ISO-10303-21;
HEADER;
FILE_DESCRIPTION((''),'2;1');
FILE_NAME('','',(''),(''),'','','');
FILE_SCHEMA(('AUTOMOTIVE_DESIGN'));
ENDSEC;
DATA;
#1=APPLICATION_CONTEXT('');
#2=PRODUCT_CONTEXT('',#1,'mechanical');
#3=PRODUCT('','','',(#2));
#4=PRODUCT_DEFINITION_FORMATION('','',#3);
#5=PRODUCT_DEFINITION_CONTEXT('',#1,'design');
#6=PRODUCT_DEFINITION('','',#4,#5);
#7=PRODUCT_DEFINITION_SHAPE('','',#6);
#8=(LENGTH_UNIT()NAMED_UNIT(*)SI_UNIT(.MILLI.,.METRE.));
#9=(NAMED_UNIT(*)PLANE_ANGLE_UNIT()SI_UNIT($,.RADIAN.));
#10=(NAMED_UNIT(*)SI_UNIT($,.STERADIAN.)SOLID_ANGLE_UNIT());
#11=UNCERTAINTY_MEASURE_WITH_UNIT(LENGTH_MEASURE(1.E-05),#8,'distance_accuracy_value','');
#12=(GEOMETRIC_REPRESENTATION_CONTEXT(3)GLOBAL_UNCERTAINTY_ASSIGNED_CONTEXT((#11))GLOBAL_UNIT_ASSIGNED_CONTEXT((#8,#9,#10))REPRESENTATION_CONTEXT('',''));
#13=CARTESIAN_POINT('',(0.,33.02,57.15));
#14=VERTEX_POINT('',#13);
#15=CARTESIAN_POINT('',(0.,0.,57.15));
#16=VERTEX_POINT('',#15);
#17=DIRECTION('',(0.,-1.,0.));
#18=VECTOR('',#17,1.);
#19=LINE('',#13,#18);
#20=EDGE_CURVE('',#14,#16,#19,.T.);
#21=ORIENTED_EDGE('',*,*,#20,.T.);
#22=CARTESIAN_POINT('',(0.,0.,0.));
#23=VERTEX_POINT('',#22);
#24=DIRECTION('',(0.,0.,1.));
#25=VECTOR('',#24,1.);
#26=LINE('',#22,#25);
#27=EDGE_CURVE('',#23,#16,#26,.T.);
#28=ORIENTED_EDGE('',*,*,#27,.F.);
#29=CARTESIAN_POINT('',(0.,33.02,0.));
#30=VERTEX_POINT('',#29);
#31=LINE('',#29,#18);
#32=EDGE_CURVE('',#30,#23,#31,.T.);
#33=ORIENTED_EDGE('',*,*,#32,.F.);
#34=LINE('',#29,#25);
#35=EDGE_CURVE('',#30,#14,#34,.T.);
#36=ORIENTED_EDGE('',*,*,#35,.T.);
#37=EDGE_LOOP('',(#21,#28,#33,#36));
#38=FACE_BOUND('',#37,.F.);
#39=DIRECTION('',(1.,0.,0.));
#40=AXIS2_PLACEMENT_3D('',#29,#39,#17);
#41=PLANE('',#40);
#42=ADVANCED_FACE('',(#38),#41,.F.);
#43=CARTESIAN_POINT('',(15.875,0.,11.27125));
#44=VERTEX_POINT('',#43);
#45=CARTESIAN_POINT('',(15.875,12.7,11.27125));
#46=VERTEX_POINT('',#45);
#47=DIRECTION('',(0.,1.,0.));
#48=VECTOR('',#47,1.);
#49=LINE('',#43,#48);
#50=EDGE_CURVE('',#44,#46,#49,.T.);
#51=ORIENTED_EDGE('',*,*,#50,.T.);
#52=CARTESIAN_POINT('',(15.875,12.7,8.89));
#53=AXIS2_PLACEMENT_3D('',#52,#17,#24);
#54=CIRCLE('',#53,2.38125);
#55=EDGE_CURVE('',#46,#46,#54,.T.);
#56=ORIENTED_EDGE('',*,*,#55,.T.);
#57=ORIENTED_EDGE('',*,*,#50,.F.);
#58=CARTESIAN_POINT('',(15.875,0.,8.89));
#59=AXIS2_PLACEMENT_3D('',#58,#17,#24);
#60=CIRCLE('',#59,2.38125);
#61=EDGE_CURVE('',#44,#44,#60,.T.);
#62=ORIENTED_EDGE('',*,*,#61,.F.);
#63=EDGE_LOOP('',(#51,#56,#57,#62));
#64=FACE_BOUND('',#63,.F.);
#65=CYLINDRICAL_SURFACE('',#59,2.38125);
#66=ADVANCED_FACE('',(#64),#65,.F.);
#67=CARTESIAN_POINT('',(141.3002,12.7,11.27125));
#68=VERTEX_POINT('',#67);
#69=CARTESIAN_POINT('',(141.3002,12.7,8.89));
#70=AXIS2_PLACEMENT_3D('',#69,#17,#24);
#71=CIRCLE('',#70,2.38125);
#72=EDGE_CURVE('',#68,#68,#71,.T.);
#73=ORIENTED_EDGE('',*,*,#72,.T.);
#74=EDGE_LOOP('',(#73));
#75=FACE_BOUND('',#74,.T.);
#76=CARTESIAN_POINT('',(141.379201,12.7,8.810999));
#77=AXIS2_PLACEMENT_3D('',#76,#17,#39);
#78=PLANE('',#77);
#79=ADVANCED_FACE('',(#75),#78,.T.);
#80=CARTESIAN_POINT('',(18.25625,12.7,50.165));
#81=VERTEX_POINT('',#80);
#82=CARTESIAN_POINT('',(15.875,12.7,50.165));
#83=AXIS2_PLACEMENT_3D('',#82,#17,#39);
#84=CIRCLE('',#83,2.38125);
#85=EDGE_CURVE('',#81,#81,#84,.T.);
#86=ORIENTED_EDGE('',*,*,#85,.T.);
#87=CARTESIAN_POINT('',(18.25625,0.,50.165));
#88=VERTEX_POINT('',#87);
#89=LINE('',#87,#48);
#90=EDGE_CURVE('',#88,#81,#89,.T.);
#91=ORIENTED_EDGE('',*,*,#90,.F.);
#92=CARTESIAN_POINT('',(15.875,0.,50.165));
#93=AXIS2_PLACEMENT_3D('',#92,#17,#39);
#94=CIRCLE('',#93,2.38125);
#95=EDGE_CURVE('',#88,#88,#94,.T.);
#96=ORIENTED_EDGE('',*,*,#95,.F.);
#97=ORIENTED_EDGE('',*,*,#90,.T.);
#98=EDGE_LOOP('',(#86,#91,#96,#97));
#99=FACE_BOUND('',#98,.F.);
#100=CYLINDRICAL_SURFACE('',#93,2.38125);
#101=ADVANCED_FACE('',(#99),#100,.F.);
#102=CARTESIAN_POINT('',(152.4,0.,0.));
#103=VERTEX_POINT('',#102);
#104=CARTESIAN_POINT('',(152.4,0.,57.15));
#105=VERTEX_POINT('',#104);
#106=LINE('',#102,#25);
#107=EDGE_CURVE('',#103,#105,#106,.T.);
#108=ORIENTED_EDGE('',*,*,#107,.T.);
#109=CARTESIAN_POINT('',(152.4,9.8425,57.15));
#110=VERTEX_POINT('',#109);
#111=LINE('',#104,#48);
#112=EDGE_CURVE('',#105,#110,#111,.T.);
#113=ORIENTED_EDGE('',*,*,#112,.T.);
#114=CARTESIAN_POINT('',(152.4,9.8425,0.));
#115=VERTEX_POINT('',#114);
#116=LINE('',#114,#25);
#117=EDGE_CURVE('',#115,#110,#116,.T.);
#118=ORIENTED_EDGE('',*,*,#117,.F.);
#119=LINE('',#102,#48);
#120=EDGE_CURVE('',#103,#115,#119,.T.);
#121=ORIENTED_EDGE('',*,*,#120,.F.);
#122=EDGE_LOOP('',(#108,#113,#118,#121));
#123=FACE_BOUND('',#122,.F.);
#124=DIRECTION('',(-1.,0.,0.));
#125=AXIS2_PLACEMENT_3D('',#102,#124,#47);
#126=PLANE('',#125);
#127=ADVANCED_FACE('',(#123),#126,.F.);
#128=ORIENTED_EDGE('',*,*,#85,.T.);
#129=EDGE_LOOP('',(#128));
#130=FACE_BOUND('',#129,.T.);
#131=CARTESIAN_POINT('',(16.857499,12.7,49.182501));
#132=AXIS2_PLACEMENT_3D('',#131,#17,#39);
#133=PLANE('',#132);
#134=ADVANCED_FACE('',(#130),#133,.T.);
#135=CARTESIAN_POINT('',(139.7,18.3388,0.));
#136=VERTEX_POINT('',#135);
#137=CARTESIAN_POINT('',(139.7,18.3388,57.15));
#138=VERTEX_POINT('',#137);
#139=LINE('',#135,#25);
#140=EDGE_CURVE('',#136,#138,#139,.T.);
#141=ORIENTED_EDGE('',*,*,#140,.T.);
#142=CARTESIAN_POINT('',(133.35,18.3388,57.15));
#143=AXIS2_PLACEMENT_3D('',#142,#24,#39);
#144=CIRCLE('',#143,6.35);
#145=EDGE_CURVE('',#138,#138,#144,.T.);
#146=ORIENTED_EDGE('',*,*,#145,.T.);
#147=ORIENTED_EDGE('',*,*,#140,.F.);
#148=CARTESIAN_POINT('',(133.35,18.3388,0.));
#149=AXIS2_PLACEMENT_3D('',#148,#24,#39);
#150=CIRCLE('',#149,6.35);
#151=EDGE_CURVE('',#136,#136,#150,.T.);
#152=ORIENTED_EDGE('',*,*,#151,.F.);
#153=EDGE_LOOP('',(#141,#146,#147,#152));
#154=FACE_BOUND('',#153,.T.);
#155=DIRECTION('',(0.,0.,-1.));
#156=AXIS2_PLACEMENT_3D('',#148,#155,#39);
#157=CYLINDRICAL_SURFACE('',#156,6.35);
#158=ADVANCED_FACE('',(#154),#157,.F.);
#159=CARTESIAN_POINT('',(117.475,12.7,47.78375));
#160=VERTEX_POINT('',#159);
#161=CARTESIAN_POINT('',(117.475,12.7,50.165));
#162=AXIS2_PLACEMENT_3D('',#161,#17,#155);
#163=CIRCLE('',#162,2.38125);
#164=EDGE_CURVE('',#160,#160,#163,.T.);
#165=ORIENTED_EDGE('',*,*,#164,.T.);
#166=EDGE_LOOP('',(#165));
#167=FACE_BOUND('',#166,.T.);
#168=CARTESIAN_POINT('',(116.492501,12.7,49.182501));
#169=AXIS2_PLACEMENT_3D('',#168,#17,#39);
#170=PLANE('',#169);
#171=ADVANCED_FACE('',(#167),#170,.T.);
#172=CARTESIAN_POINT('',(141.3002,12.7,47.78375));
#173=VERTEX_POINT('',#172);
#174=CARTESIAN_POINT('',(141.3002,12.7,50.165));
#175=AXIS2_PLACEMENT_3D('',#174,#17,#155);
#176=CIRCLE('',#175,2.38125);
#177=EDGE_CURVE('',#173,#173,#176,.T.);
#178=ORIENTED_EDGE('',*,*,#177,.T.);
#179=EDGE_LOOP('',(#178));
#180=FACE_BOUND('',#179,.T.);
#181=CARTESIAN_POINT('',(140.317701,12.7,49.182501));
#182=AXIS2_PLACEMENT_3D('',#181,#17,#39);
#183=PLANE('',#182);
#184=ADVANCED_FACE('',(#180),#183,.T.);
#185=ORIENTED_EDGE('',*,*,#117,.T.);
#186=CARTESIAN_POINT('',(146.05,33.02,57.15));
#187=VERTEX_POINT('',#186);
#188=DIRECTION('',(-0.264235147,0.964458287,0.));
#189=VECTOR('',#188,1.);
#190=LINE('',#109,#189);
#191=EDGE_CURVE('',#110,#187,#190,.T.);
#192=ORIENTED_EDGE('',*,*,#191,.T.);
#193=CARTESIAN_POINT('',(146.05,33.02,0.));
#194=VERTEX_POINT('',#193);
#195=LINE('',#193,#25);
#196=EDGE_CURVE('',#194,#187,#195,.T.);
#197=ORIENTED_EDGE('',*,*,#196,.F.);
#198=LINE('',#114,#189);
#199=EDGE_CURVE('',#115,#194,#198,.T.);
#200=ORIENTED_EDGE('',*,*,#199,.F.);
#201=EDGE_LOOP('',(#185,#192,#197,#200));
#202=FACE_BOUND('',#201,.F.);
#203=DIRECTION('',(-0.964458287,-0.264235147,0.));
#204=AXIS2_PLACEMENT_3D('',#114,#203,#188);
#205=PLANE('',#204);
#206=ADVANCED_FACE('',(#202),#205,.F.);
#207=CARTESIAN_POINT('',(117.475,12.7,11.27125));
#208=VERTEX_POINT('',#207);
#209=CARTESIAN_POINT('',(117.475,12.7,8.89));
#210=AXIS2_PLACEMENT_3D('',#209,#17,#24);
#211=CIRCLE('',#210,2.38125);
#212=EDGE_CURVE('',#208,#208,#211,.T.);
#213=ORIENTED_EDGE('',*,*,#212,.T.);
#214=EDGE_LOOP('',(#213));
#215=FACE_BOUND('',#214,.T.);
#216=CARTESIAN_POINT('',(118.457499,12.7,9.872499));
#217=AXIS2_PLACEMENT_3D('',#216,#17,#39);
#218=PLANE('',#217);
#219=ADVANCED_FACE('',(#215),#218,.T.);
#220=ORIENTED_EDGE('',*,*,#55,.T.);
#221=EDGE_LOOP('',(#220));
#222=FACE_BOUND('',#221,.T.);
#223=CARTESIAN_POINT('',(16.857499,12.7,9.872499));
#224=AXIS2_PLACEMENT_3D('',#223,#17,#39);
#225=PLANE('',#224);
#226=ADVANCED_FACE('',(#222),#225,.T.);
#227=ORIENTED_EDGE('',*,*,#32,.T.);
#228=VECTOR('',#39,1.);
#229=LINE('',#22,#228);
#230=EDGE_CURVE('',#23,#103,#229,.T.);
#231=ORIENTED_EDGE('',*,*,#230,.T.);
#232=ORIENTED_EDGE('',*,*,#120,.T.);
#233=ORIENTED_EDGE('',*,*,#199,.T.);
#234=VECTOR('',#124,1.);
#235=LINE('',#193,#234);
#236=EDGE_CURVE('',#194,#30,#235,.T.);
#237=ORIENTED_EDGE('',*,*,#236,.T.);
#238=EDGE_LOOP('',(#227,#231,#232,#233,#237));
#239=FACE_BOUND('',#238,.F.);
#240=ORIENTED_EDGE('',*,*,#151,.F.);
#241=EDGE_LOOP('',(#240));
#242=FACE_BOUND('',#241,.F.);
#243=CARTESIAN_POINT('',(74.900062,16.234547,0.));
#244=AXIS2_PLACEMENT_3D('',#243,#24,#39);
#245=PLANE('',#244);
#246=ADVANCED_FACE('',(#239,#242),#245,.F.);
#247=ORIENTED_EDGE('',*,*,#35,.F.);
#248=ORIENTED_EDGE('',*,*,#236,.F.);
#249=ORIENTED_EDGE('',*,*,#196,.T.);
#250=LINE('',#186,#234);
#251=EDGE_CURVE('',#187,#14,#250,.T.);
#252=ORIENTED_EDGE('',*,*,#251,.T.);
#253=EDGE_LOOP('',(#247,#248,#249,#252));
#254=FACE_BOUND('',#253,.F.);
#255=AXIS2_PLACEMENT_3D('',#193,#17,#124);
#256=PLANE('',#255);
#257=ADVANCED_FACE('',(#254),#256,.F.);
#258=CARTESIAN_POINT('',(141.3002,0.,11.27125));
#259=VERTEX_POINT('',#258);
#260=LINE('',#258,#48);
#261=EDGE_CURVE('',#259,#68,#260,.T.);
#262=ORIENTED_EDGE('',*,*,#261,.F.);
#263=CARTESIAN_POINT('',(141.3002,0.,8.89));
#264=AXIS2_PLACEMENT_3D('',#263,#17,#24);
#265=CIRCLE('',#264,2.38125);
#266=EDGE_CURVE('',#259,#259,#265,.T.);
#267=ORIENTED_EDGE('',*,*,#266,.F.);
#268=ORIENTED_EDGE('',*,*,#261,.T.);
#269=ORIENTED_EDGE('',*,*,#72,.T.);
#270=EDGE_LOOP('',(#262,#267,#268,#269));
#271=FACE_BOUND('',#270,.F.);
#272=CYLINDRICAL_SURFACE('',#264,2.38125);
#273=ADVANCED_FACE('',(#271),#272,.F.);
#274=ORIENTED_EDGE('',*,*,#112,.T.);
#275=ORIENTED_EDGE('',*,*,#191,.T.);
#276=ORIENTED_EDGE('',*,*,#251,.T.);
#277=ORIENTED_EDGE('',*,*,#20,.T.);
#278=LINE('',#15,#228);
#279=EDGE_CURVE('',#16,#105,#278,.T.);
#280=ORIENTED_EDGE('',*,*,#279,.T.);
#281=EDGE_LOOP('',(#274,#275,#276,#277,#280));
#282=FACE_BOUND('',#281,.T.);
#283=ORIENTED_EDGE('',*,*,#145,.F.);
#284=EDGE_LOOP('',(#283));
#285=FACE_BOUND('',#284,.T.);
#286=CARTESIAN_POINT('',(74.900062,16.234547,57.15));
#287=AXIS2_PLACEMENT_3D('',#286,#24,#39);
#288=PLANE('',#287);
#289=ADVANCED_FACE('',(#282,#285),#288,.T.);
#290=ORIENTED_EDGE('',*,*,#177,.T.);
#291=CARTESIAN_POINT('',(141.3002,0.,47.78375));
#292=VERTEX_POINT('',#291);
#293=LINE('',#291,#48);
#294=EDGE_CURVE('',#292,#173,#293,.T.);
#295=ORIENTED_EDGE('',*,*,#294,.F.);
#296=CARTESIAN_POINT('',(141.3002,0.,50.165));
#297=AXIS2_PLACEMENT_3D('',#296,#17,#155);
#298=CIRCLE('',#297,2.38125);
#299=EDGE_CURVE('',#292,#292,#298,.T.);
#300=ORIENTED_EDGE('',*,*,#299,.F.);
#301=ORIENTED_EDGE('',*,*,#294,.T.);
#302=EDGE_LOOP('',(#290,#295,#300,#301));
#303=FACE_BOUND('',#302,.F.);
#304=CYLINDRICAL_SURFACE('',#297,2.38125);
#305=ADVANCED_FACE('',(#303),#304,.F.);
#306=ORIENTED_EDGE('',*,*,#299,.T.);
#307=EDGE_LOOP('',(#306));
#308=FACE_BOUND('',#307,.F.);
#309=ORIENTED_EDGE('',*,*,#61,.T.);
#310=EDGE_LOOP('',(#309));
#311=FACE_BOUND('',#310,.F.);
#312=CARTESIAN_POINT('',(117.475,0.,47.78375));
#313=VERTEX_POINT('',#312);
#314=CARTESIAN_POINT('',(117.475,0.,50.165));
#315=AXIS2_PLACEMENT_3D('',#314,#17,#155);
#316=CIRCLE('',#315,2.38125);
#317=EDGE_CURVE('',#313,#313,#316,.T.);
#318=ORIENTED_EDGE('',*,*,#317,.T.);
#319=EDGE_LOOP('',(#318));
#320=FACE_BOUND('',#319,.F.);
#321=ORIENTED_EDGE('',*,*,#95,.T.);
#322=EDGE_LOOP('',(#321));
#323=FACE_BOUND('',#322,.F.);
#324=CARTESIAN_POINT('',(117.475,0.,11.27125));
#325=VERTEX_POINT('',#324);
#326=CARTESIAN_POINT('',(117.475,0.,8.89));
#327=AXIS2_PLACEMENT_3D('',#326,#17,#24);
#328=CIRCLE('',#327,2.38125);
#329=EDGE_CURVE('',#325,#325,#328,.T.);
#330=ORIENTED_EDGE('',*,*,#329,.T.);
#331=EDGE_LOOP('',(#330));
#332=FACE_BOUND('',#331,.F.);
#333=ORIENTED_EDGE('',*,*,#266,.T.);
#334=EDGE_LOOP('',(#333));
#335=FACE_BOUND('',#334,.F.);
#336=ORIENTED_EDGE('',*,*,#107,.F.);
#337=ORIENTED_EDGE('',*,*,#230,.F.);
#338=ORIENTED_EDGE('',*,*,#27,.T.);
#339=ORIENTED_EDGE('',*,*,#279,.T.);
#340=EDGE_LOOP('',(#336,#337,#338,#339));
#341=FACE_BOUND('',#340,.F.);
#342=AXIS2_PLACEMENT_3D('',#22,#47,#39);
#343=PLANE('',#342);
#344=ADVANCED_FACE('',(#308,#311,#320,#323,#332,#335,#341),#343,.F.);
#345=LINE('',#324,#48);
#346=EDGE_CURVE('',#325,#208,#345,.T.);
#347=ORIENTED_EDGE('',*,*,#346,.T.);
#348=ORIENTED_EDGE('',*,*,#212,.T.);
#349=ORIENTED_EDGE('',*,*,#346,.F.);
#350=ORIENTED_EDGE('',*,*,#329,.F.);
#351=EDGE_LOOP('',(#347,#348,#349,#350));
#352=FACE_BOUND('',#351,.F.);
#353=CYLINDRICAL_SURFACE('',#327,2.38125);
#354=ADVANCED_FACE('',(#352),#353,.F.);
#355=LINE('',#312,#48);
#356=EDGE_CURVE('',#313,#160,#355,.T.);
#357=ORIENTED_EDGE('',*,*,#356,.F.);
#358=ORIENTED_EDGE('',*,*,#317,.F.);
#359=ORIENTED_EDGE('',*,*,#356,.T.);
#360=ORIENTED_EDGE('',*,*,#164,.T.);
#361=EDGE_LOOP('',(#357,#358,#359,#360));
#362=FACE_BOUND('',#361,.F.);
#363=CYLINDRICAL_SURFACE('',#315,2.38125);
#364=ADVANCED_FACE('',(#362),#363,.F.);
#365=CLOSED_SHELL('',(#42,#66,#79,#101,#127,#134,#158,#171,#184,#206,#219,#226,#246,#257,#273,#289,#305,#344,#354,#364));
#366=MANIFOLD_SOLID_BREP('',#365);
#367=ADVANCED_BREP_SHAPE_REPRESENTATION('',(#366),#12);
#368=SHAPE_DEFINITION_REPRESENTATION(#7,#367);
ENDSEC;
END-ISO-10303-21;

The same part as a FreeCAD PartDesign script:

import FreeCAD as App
import Part
import Sketcher

V = App.Vector
Q = App.Units.Quantity

doc = App.newDocument("Part")
body = doc.addObject("PartDesign::Body", "Body")

# Sketch on XY plane
sketch1 = body.newObject("Sketcher::SketchObject", "Sketch")
sketch1.AttachmentSupport = (doc.getObject("XY_Plane"), [""])
sketch1.MapMode = "FlatFace"
sketch1.addGeometry(Part.LineSegment(V(0, 33.02, 0), V(0, 0, 0)), False)
sketch1.addGeometry(Part.LineSegment(V(0, 0, 0), V(152.4, 0, 0)), False)
sketch1.addGeometry(Part.LineSegment(V(152.4, 0, 0), V(152.4, 9.8425, 0)), False)
sketch1.addGeometry(Part.LineSegment(V(152.4, 9.8425, 0), V(146.05, 33.02, 0)), False)
sketch1.addGeometry(Part.LineSegment(V(146.05, 33.02, 0), V(0, 33.02, 0)), False)
sketch1.addGeometry(Part.Circle(V(133.35, 18.3388, 0), V(0, 0, 1), 6.35), False)
sketch1.addConstraint(Sketcher.Constraint("Coincident", 0, 2, 1, 1))
sketch1.addConstraint(Sketcher.Constraint("Coincident", 1, 2, 2, 1))
sketch1.addConstraint(Sketcher.Constraint("Coincident", 2, 2, 3, 1))
sketch1.addConstraint(Sketcher.Constraint("Coincident", 3, 2, 4, 1))
sketch1.addConstraint(Sketcher.Constraint("Coincident", 4, 2, 0, 1))
sketch1.addConstraint(Sketcher.Constraint("Vertical", 0))
sketch1.addConstraint(Sketcher.Constraint("Horizontal", 1))
sketch1.addConstraint(Sketcher.Constraint("Vertical", 2))
sketch1.addConstraint(Sketcher.Constraint("Horizontal", 4))
sketch1.addConstraint(Sketcher.Constraint("Coincident", 0, 2, -1, 1))
sketch1.addConstraint(Sketcher.Constraint("Diameter", 5, Q("0.5 in")))
sketch1.addConstraint(Sketcher.Constraint("DistanceX", 1, 1, 1, 2, Q("6 in")))
sketch1.addConstraint(Sketcher.Constraint("DistanceY", 0, 2, 0, 1, Q("1.3 in")))
sketch1.addConstraint(Sketcher.Constraint("DistanceX", 4, 2, 4, 1, Q("5.75 in")))
sketch1.addConstraint(Sketcher.Constraint("DistanceX", 5, 3, 3, 2, Q("0.5 in")))
sketch1.addConstraint(Sketcher.Constraint("DistanceY", 2, 1, 2, 2, Q("0.3875 in")))
sketch1.addConstraint(Sketcher.Constraint("DistanceY", -1, 1, 5, 3, Q("0.722 in")))
pad1 = body.newObject("PartDesign::Pad", "Pad")
pad1.Profile = sketch1
pad1.Length = Q("2.25 in")

# Sketch on XZ plane
sketch2 = body.newObject("Sketcher::SketchObject", "Sketch001")
sketch2.AttachmentSupport = (doc.getObject("XZ_Plane"), [""])
sketch2.MapMode = "FlatFace"
sketch2.addGeometry(Part.Circle(V(141.3002, 8.89, 0), V(0, 0, 1), 2.38125), False)
sketch2.addGeometry(Part.Circle(V(141.3002, 50.165, 0), V(0, 0, 1), 2.38125), False)
sketch2.addGeometry(Part.Circle(V(117.475, 8.89, 0), V(0, 0, 1), 2.38125), False)
sketch2.addGeometry(Part.Circle(V(117.475, 50.165, 0), V(0, 0, 1), 2.38125), False)
sketch2.addGeometry(Part.Circle(V(15.875, 8.89, 0), V(0, 0, 1), 2.38125), False)
sketch2.addGeometry(Part.Circle(V(15.875, 50.165, 0), V(0, 0, 1), 2.38125), False)
sketch2.addConstraint(Sketcher.Constraint("Equal", 0, 1))
sketch2.addConstraint(Sketcher.Constraint("Equal", 1, 2))
sketch2.addConstraint(Sketcher.Constraint("Equal", 2, 3))
sketch2.addConstraint(Sketcher.Constraint("Equal", 3, 4))
sketch2.addConstraint(Sketcher.Constraint("Equal", 4, 5))
sketch2.addConstraint(Sketcher.Constraint("Horizontal", 0, 3, 2, 3))
sketch2.addConstraint(Sketcher.Constraint("Horizontal", 1, 3, 3, 3))
sketch2.addConstraint(Sketcher.Constraint("Horizontal", 2, 3, 4, 3))
sketch2.addConstraint(Sketcher.Constraint("Horizontal", 3, 3, 5, 3))
sketch2.addConstraint(Sketcher.Constraint("Vertical", 0, 3, 1, 3))
sketch2.addConstraint(Sketcher.Constraint("Vertical", 2, 3, 3, 3))
sketch2.addConstraint(Sketcher.Constraint("Vertical", 4, 3, 5, 3))
sketch2.addConstraint(Sketcher.Constraint("Diameter", 0, Q("0.1875 in")))
sketch2.addConstraint(Sketcher.Constraint("DistanceX", 4, 3, 2, 3, Q("4 in")))
sketch2.addConstraint(Sketcher.Constraint("DistanceY", -1, 1, 0, 3, Q("0.35 in")))
sketch2.addConstraint(Sketcher.Constraint("DistanceX", -1, 1, 0, 3, Q("5.563 in")))
sketch2.addConstraint(Sketcher.Constraint("DistanceY", -1, 1, 1, 3, Q("1.975 in")))
sketch2.addConstraint(Sketcher.Constraint("DistanceX", -1, 1, 2, 3, Q("4.625 in")))
pocket1 = body.newObject("PartDesign::Pocket", "Pocket")
pocket1.Profile = sketch2
pocket1.Length = Q("0.5 in")

doc.recompute()
